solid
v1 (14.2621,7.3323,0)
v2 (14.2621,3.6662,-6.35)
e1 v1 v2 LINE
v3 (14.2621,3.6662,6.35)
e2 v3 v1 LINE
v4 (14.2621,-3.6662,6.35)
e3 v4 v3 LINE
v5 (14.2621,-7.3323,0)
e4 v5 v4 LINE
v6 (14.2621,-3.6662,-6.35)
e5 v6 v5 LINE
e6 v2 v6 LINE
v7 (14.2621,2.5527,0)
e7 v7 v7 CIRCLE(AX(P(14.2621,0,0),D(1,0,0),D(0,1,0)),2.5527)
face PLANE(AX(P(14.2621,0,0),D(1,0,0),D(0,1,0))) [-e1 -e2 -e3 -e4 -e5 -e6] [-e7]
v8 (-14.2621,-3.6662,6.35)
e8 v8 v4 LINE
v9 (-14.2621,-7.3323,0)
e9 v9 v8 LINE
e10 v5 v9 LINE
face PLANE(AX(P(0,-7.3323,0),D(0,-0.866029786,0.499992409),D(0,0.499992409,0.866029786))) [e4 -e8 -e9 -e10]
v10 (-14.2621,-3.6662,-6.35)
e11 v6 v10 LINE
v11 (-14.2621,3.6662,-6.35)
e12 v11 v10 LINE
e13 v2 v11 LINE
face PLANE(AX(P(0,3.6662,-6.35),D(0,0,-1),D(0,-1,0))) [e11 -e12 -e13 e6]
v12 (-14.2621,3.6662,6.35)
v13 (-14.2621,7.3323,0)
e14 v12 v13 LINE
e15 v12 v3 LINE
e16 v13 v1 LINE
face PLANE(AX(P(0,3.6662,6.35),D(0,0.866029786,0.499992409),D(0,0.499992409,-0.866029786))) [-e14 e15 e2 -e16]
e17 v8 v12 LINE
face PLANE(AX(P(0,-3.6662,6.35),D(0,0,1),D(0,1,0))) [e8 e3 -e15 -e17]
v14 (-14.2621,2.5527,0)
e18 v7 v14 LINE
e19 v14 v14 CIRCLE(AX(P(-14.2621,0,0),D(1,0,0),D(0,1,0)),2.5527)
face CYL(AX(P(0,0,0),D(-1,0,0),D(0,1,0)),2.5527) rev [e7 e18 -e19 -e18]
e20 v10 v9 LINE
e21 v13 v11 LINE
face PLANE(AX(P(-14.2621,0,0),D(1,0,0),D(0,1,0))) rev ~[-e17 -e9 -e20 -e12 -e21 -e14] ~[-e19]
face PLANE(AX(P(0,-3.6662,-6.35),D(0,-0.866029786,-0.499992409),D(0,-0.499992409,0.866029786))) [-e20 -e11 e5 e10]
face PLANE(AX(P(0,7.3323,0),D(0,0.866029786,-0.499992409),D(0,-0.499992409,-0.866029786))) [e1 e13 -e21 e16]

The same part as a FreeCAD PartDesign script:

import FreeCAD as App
import Part
import Sketcher

V = App.Vector
Q = App.Units.Quantity

doc = App.newDocument("Part")
body = doc.addObject("PartDesign::Body", "Body")

# Sketch on YZ plane
sketch1 = body.newObject("Sketcher::SketchObject", "Sketch")
sketch1.AttachmentSupport = (doc.getObject("YZ_Plane"), [""])
sketch1.MapMode = "FlatFace"
sketch1.addGeometry([
    Part.LineSegment(V(3.6662, -6.35, 0), V(7.3323, 0, 0)),  # 0
    Part.LineSegment(V(7.3323, 0, 0), V(3.6662, 6.35, 0)),  # 1
    Part.LineSegment(V(3.6662, 6.35, 0), V(-3.6662, 6.35, 0)),  # 2
    Part.LineSegment(V(-3.6662, 6.35, 0), V(-7.3323, 0, 0)),  # 3
    Part.LineSegment(V(-7.3323, 0, 0), V(-3.6662, -6.35, 0)),  # 4
    Part.LineSegment(V(-3.6662, -6.35, 0), V(3.6662, -6.35, 0)),  # 5
    Part.Circle(V(0, 0, 0), V(0, 0, 1), 2.5527),  # 6
], False)
sketch1.addConstraint([
    Sketcher.Constraint("Coincident", 0, 2, 1, 1),
    Sketcher.Constraint("Coincident", 1, 2, 2, 1),
    Sketcher.Constraint("Coincident", 2, 2, 3, 1),
    Sketcher.Constraint("Coincident", 3, 2, 4, 1),
    Sketcher.Constraint("Coincident", 4, 2, 5, 1),
    Sketcher.Constraint("Coincident", 5, 2, 0, 1),
    Sketcher.Constraint("Horizontal", 2),
    Sketcher.Constraint("Horizontal", 5),
    Sketcher.Constraint("Coincident", 6, 3, -1, 1),
    Sketcher.Constraint("Symmetric", 0, 2, 3, 2, -1, 1),
    Sketcher.Constraint("Symmetric", 1, 2, 4, 2, -1, 1),
    Sketcher.Constraint("PointOnObject", 0, 2, -1),
    Sketcher.Constraint("Parallel", 0, 3),
    Sketcher.Constraint("Vertical", 2, 2, 4, 2),
    Sketcher.Constraint("Diameter", 6, Q("0.201 in")),
    Sketcher.Constraint("DistanceY", 4, 2, 2, 2, Q("0.5 in")),
    Sketcher.Constraint("Angle", 0, Q("60.0005 deg")),
    Sketcher.Constraint("DistanceX", 2, 2, 0, 2, Q("0.433 in")),
])
pad1 = body.newObject("PartDesign::Pad", "Pad")
pad1.Profile = sketch1
pad1.Length = Q("1.123 in")
pad1.Midplane = True

doc.recompute()
